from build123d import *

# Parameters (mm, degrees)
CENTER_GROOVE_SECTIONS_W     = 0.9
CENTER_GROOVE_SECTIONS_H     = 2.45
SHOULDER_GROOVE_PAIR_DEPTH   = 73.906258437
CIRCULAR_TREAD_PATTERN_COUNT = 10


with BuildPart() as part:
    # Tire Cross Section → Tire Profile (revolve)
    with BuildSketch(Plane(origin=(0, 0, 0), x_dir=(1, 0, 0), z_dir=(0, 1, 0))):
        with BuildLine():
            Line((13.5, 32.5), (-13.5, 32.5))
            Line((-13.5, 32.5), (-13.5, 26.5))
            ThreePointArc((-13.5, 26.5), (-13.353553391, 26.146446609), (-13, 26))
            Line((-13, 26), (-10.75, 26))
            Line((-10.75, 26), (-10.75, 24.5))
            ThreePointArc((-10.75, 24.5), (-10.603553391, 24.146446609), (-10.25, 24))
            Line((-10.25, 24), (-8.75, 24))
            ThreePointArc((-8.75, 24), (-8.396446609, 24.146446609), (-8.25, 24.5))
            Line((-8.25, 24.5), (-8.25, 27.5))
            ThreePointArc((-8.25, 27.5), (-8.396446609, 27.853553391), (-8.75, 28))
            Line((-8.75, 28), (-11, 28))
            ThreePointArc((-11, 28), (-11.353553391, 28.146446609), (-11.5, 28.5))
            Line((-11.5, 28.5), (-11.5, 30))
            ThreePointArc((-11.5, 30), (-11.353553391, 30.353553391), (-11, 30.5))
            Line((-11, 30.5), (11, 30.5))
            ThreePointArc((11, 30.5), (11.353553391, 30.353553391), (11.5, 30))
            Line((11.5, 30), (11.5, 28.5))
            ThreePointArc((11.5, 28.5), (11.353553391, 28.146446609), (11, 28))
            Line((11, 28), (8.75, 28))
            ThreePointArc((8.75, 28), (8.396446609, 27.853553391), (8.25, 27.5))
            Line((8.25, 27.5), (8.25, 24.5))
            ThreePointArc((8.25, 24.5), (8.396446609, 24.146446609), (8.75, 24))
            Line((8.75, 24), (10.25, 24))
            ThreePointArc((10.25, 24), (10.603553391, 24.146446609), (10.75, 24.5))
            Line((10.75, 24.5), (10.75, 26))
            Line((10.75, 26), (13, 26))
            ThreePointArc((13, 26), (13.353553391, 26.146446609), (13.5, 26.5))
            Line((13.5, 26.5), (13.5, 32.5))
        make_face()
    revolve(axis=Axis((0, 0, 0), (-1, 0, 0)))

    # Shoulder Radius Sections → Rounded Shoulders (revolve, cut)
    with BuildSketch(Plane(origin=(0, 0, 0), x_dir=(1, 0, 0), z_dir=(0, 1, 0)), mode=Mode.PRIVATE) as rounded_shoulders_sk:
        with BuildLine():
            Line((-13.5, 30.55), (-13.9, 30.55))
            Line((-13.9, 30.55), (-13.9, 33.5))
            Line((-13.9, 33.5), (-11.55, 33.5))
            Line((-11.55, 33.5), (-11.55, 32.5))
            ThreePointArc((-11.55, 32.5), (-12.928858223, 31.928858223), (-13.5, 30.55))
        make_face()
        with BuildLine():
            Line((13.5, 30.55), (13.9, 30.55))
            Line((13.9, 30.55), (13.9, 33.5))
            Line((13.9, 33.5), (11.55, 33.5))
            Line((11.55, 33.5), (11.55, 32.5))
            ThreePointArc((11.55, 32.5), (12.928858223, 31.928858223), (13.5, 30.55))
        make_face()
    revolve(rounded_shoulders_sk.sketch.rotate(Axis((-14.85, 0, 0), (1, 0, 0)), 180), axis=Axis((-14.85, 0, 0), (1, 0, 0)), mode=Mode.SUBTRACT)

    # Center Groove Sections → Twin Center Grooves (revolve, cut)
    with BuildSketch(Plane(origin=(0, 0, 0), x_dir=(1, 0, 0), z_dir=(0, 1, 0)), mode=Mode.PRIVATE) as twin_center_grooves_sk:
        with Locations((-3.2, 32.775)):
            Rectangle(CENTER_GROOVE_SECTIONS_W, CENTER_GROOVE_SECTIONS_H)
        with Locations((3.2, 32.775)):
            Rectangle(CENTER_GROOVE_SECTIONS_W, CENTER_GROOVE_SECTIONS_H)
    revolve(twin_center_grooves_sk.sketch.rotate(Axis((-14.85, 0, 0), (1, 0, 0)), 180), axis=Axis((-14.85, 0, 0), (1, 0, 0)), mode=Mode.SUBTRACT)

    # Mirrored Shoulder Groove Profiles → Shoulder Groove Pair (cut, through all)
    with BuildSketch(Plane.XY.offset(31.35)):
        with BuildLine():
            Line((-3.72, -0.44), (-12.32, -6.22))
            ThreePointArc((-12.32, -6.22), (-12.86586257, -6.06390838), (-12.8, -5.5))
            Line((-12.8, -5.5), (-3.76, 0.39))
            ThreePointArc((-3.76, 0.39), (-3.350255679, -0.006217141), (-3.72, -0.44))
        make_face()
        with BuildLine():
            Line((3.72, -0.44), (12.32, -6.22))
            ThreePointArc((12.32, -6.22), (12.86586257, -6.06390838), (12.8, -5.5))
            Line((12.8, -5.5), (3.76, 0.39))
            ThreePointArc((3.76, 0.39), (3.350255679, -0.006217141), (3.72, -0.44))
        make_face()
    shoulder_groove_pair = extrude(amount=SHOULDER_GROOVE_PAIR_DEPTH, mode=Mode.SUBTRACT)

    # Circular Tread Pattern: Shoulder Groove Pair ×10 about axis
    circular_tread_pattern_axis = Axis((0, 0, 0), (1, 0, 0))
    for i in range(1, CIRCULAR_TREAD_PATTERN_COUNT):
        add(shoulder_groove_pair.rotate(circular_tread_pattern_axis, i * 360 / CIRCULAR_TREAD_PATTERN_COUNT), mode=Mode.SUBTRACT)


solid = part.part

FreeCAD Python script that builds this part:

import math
import FreeCAD as App
import Part
import Sketcher
Q = App.Units.Quantity


def add_polygon(sketch, points):
    """Adds a closed chain of lines whose ends are joined by coincident constraints."""
    first, n = sketch.GeometryCount, len(points)
    for a, b in zip(points, points[1:] + points[:1]):
        sketch.addGeometry(Part.LineSegment(App.Vector(*a, 0), App.Vector(*b, 0)), False)
    for i in range(n):
        sketch.addConstraint(Sketcher.Constraint("Coincident", first + i, 2, first + (i + 1) % n, 1))

doc = App.newDocument("Part")
body = doc.addObject("PartDesign::Body", "Body")

# Sketch on XZ plane
sketch1 = doc.addObject("Sketcher::SketchObject", "Sketch")
body.addObject(sketch1)
sketch1.AttachmentSupport = (doc.XZ_Plane, [""])
sketch1.MapMode = "FlatFace"
sketch1.addGeometry([
    Part.LineSegment(App.Vector(13.5, -32.5, 0), App.Vector(-13.5, -32.5, 0)),  # 0
    Part.LineSegment(App.Vector(-13.5, -32.5, 0), App.Vector(-13.5, -26.5, 0)),  # 1
    Part.ArcOfCircle(Part.Circle(App.Vector(-13, -26.5, 0), App.Vector(0, 0, 1), 0.5), math.radians(90), math.radians(180)),  # 2
    Part.LineSegment(App.Vector(-13, -26, 0), App.Vector(-10.75, -26, 0)),  # 3
    Part.LineSegment(App.Vector(-10.75, -26, 0), App.Vector(-10.75, -24.5, 0)),  # 4
    Part.ArcOfCircle(Part.Circle(App.Vector(-10.25, -24.5, 0), App.Vector(0, 0, 1), 0.5), math.radians(90), math.radians(180)),  # 5
    Part.LineSegment(App.Vector(-10.25, -24, 0), App.Vector(-8.75, -24, 0)),  # 6
    Part.ArcOfCircle(Part.Circle(App.Vector(-8.75, -24.5, 0), App.Vector(0, 0, 1), 0.5), math.radians(0), math.radians(90)),  # 7
    Part.LineSegment(App.Vector(-8.25, -24.5, 0), App.Vector(-8.25, -27.5, 0)),  # 8
    Part.ArcOfCircle(Part.Circle(App.Vector(-8.75, -27.5, 0), App.Vector(0, 0, 1), 0.5), math.radians(-90), math.radians(0)),  # 9
    Part.LineSegment(App.Vector(-8.75, -28, 0), App.Vector(-11, -28, 0)),  # 10
    Part.ArcOfCircle(Part.Circle(App.Vector(-11, -28.5, 0), App.Vector(0, 0, 1), 0.5), math.radians(90), math.radians(180)),  # 11
    Part.LineSegment(App.Vector(-11.5, -28.5, 0), App.Vector(-11.5, -30, 0)),  # 12
    Part.ArcOfCircle(Part.Circle(App.Vector(-11, -30, 0), App.Vector(0, 0, 1), 0.5), math.radians(180), math.radians(270)),  # 13
    Part.LineSegment(App.Vector(-11, -30.5, 0), App.Vector(11, -30.5, 0)),  # 14
    Part.ArcOfCircle(Part.Circle(App.Vector(11, -30, 0), App.Vector(0, 0, 1), 0.5), math.radians(-90), math.radians(0)),  # 15
    Part.LineSegment(App.Vector(11.5, -30, 0), App.Vector(11.5, -28.5, 0)),  # 16
    Part.ArcOfCircle(Part.Circle(App.Vector(11, -28.5, 0), App.Vector(0, 0, 1), 0.5), math.radians(0), math.radians(90)),  # 17
    Part.LineSegment(App.Vector(11, -28, 0), App.Vector(8.75, -28, 0)),  # 18
    Part.ArcOfCircle(Part.Circle(App.Vector(8.75, -27.5, 0), App.Vector(0, 0, 1), 0.5), math.radians(180), math.radians(270)),  # 19
    Part.LineSegment(App.Vector(8.25, -27.5, 0), App.Vector(8.25, -24.5, 0)),  # 20
    Part.ArcOfCircle(Part.Circle(App.Vector(8.75, -24.5, 0), App.Vector(0, 0, 1), 0.5), math.radians(90), math.radians(180)),  # 21
    Part.LineSegment(App.Vector(8.75, -24, 0), App.Vector(10.25, -24, 0)),  # 22
    Part.ArcOfCircle(Part.Circle(App.Vector(10.25, -24.5, 0), App.Vector(0, 0, 1), 0.5), math.radians(0), math.radians(90)),  # 23
    Part.LineSegment(App.Vector(10.75, -24.5, 0), App.Vector(10.75, -26, 0)),  # 24
    Part.LineSegment(App.Vector(10.75, -26, 0), App.Vector(13, -26, 0)),  # 25
    Part.ArcOfCircle(Part.Circle(App.Vector(13, -26.5, 0), App.Vector(0, 0, 1), 0.5), math.radians(0), math.radians(90)),  # 26
    Part.LineSegment(App.Vector(13.5, -26.5, 0), App.Vector(13.5, -32.5, 0)),  # 27
], False)
sketch1.addConstraint([
    Sketcher.Constraint("Coincident", 0, 2, 1, 1),
    Sketcher.Constraint("Tangent", 1, 2, 2, 2),
    Sketcher.Constraint("Tangent", 2, 1, 3, 1),
    Sketcher.Constraint("Coincident", 3, 2, 4, 1),
    Sketcher.Constraint("Tangent", 4, 2, 5, 2),
    Sketcher.Constraint("Tangent", 5, 1, 6, 1),
    Sketcher.Constraint("Tangent", 6, 2, 7, 2),
    Sketcher.Constraint("Tangent", 7, 1, 8, 1),
    Sketcher.Constraint("Tangent", 8, 2, 9, 2),
    Sketcher.Constraint("Tangent", 9, 1, 10, 1),
    Sketcher.Constraint("Tangent", 10, 2, 11, 1),
    Sketcher.Constraint("Tangent", 11, 2, 12, 1),
    Sketcher.Constraint("Tangent", 12, 2, 13, 1),
    Sketcher.Constraint("Tangent", 13, 2, 14, 1),
    Sketcher.Constraint("Tangent", 14, 2, 15, 1),
    Sketcher.Constraint("Tangent", 15, 2, 16, 1),
    Sketcher.Constraint("Tangent", 16, 2, 17, 1),
    Sketcher.Constraint("Tangent", 17, 2, 18, 1),
    Sketcher.Constraint("Tangent", 18, 2, 19, 2),
    Sketcher.Constraint("Tangent", 19, 1, 20, 1),
    Sketcher.Constraint("Tangent", 20, 2, 21, 2),
    Sketcher.Constraint("Tangent", 21, 1, 22, 1),
    Sketcher.Constraint("Tangent", 22, 2, 23, 2),
    Sketcher.Constraint("Tangent", 23, 1, 24, 1),
    Sketcher.Constraint("Coincident", 24, 2, 25, 1),
    Sketcher.Constraint("Tangent", 25, 2, 26, 2),
    Sketcher.Constraint("Tangent", 26, 1, 27, 1),
    Sketcher.Constraint("Coincident", 27, 2, 0, 1),
    Sketcher.Constraint("Horizontal", 0),
    Sketcher.Constraint("Vertical", 1),
    Sketcher.Constraint("Horizontal", 3),
    Sketcher.Constraint("Vertical", 4),
    Sketcher.Constraint("Horizontal", 6),
    Sketcher.Constraint("Vertical", 8),
    Sketcher.Constraint("Horizontal", 10),
    Sketcher.Constraint("Vertical", 12),
    Sketcher.Constraint("Horizontal", 14),
    Sketcher.Constraint("Vertical", 16),
    Sketcher.Constraint("Horizontal", 18),
    Sketcher.Constraint("Vertical", 20),
    Sketcher.Constraint("Horizontal", 22),
    Sketcher.Constraint("Vertical", 24),
    Sketcher.Constraint("Horizontal", 25),
    Sketcher.Constraint("Vertical", 27),
    Sketcher.Constraint("Equal", 2, 5),
    Sketcher.Constraint("Equal", 5, 7),
    Sketcher.Constraint("Equal", 7, 9),
    Sketcher.Constraint("Equal", 9, 11),
    Sketcher.Constraint("Equal", 11, 13),
    Sketcher.Constraint("Equal", 13, 15),
    Sketcher.Constraint("Equal", 15, 17),
    Sketcher.Constraint("Equal", 17, 19),
    Sketcher.Constraint("Equal", 19, 21),
    Sketcher.Constraint("Equal", 21, 23),
    Sketcher.Constraint("Equal", 23, 26),
    Sketcher.Constraint("Symmetric", 11, 3, 17, 3, -2),
    Sketcher.Constraint("Symmetric", 7, 3, 21, 3, -2),
    Sketcher.Constraint("Symmetric", 2, 3, 26, 3, -2),
    Sketcher.Constraint("Equal", 3, 10),
    Sketcher.Constraint("Equal", 6, 22),
    Sketcher.Constraint("Equal", 22, 4),
    Sketcher.Constraint("Equal", 4, 12),
    Sketcher.Constraint("Radius", 2, Q("0.5 mm")),
    Sketcher.Constraint("DistanceX", 0, 2, 0, 1, Q("27 mm")),
    Sketcher.Constraint("DistanceX", 14, 1, 14, 2, Q("22 mm")),
    Sketcher.Constraint("DistanceY", 1, 1, 1, 2, Q("6 mm")),
    Sketcher.Constraint("DistanceY", 8, 2, 8, 1, Q("3 mm")),
    Sketcher.Constraint("DistanceY", 13, 3, -1, 1, Q("30 mm")),
    Sketcher.Constraint("DistanceX", 5, 3, 19, 3, Q("19 mm")),
])
revolution = doc.addObject("PartDesign::Revolution", "Revolution")
body.addObject(revolution)
revolution.Profile = sketch1
revolution.ReferenceAxis = (sketch1, ["H_Axis"])
revolution.Angle = 360

# Sketch on XZ plane
sketch2 = doc.addObject("Sketcher::SketchObject", "Sketch001")
body.addObject(sketch2)
sketch2.AttachmentSupport = (doc.XZ_Plane, [""])
sketch2.MapMode = "FlatFace"
sketch2.addGeometry([
    Part.LineSegment(App.Vector(-13.9, -30.55, 0), App.Vector(-13.5, -30.55, 0)),  # 0
    Part.ArcOfCircle(Part.Circle(App.Vector(-11.55, -30.55, 0), App.Vector(0, 0, 1), 1.95), math.radians(-180), math.radians(-90)),  # 1
    Part.LineSegment(App.Vector(-11.55, -32.5, 0), App.Vector(-11.55, -33.5, 0)),  # 2
    Part.LineSegment(App.Vector(-11.55, -33.5, 0), App.Vector(-13.9, -33.5, 0)),  # 3
    Part.LineSegment(App.Vector(-13.9, -33.5, 0), App.Vector(-13.9, -30.55, 0)),  # 4
    Part.LineSegment(App.Vector(13.5, -30.55, 0), App.Vector(13.9, -30.55, 0)),  # 5
    Part.LineSegment(App.Vector(13.9, -30.55, 0), App.Vector(13.9, -33.5, 0)),  # 6
    Part.LineSegment(App.Vector(13.9, -33.5, 0), App.Vector(11.55, -33.5, 0)),  # 7
    Part.LineSegment(App.Vector(11.55, -33.5, 0), App.Vector(11.55, -32.5, 0)),  # 8
    Part.ArcOfCircle(Part.Circle(App.Vector(11.55, -30.55, 0), App.Vector(0, 0, 1), 1.95), math.radians(-90), math.radians(0)),  # 9
], False)
sketch2.addConstraint([
    Sketcher.Constraint("Coincident", 0, 2, 1, 1),
    Sketcher.Constraint("Coincident", 1, 2, 2, 1),
    Sketcher.Constraint("Coincident", 2, 2, 3, 1),
    Sketcher.Constraint("Coincident", 3, 2, 4, 1),
    Sketcher.Constraint("Coincident", 4, 2, 0, 1),
    Sketcher.Constraint("Coincident", 5, 2, 6, 1),
    Sketcher.Constraint("Coincident", 6, 2, 7, 1),
    Sketcher.Constraint("Coincident", 7, 2, 8, 1),
    Sketcher.Constraint("Coincident", 8, 2, 9, 1),
    Sketcher.Constraint("Coincident", 9, 2, 5, 1),
    Sketcher.Constraint("Horizontal", 0),
    Sketcher.Constraint("Vertical", 2),
    Sketcher.Constraint("Horizontal", 3),
    Sketcher.Constraint("Vertical", 4),
    Sketcher.Constraint("Horizontal", 5),
    Sketcher.Constraint("Vertical", 6),
    Sketcher.Constraint("Horizontal", 7),
    Sketcher.Constraint("Vertical", 8),
    Sketcher.Constraint("Equal", 1, 9),
    Sketcher.Constraint("Symmetric", 1, 3, 9, 3, -2),
    Sketcher.Constraint("Symmetric", 4, 2, 5, 2, -2),
    Sketcher.Constraint("Symmetric", 2, 2, 7, 2, -2),
    Sketcher.Constraint("Horizontal", 9, 3, 0, 2),
    Sketcher.Constraint("Vertical", 9, 3, 7, 2),
    Sketcher.Constraint("DistanceY", 2, 2, 2, 1, Q("1 mm")),
    Sketcher.Constraint("Radius", 1, Q("1.95 mm")),
    Sketcher.Constraint("DistanceX", 0, 1, 0, 2, Q("0.4 mm")),
    Sketcher.Constraint("DistanceX", 0, 2, -1, 1, Q("13.5 mm")),
    Sketcher.Constraint("DistanceY", 1, 2, -1, 1, Q("32.5 mm")),
])
groove = doc.addObject("PartDesign::Groove", "Groove")
body.addObject(groove)
groove.Profile = sketch2
groove.ReferenceAxis = (sketch2, ["H_Axis"])
groove.Angle = 360

# Sketch on XZ plane
sketch3 = doc.addObject("Sketcher::SketchObject", "Sketch002")
body.addObject(sketch3)
sketch3.AttachmentSupport = (doc.XZ_Plane, [""])
sketch3.MapMode = "FlatFace"
add_polygon(sketch3, [(-3.6, -34), (-3.6, -31.6), (-2.8, -31.6), (-2.8, -34)])  # lines 0-3
add_polygon(sketch3, [(2.8, -34), (2.8, -31.6), (3.6, -31.6), (3.6, -34)])  # lines 4-7
sketch3.addConstraint([
    Sketcher.Constraint("Vertical", 0),
    Sketcher.Constraint("Horizontal", 1),
    Sketcher.Constraint("Vertical", 2),
    Sketcher.Constraint("Horizontal", 3),
    Sketcher.Constraint("Vertical", 4),
    Sketcher.Constraint("Horizontal", 5),
    Sketcher.Constraint("Vertical", 6),
    Sketcher.Constraint("Horizontal", 7),
    Sketcher.Constraint("Symmetric", 1, 2, 4, 2, -2),
    Sketcher.Constraint("Symmetric", 3, 2, 6, 2, -2),
    Sketcher.Constraint("DistanceX", 1, 1, 1, 2, Q("0.9 mm")),
    Sketcher.Constraint("DistanceY", 2, 2, -1, 1, Q("34 mm")),
    Sketcher.Constraint("DistanceY", 0, 1, 0, 2, Q("2.45 mm")),
    Sketcher.Constraint("DistanceX", 1, 2, 4, 2, Q("5.5 mm")),
])
groove2 = doc.addObject("PartDesign::Groove", "Groove001")
body.addObject(groove2)
groove2.Profile = sketch3
groove2.ReferenceAxis = (sketch3, ["H_Axis"])
groove2.Angle = 360

# Sketch on XY plane
sketch4 = doc.addObject("Sketcher::SketchObject", "Sketch003")
body.addObject(sketch4)
sketch4.AttachmentSupport = (doc.XY_Plane, [""])
sketch4.MapMode = "FlatFace"
sketch4.AttachmentOffset = App.Placement(App.Vector(0, 0, 31.35), App.Rotation())
sketch4.addGeometry([
    Part.LineSegment(App.Vector(-12.32, -6.22, 0), App.Vector(-3.72, -0.44, 0)),  # 0
    Part.ArcOfCircle(Part.Circle(App.Vector(-3.77, -0.03, 0), App.Vector(0, 0, 1), 0.42), math.radians(-84), math.radians(89)),  # 1
    Part.LineSegment(App.Vector(-3.76, 0.39, 0), App.Vector(-12.8, -5.5, 0)),  # 2
    Part.ArcOfCircle(Part.Circle(App.Vector(-12.5, -5.82, 0), App.Vector(0, 0, 1), 0.44), math.radians(133), math.radians(294)),  # 3
    Part.LineSegment(App.Vector(3.72, -0.44, 0), App.Vector(12.32, -6.22, 0)),  # 4
    Part.ArcOfCircle(Part.Circle(App.Vector(12.5, -5.82, 0), App.Vector(0, 0, 1), 0.44), math.radians(-114), math.radians(47)),  # 5
    Part.LineSegment(App.Vector(12.8, -5.5, 0), App.Vector(3.76, 0.39, 0)),  # 6
    Part.ArcOfCircle(Part.Circle(App.Vector(3.77, -0.03, 0), App.Vector(0, 0, 1), 0.42), math.radians(91), math.radians(264)),  # 7
], False)
sketch4.addConstraint([
    Sketcher.Constraint("Coincident", 0, 2, 1, 1),
    Sketcher.Constraint("Coincident", 1, 2, 2, 1),
    Sketcher.Constraint("Coincident", 2, 2, 3, 1),
    Sketcher.Constraint("Coincident", 3, 2, 0, 1),
    Sketcher.Constraint("Coincident", 4, 2, 5, 1),
    Sketcher.Constraint("Coincident", 5, 2, 6, 1),
    Sketcher.Constraint("Coincident", 6, 2, 7, 1),
    Sketcher.Constraint("Coincident", 7, 2, 4, 1),
    Sketcher.Constraint("Equal", 3, 5),
    Sketcher.Constraint("Equal", 1, 7),
    Sketcher.Constraint("Symmetric", 3, 3, 5, 3, -2),
    Sketcher.Constraint("Symmetric", 1, 3, 7, 3, -2),
    Sketcher.Constraint("Horizontal", 3, 2, 4, 2),
    Sketcher.Constraint("Horizontal", 2, 2, 5, 2),
    Sketcher.Constraint("Horizontal", 1, 2, 6, 2),
    Sketcher.Constraint("Horizontal", 0, 2, 7, 2),
    Sketcher.Constraint("DistanceX", 2, 2, -1, 1, Q("12.8 mm")),
    Sketcher.Constraint("DistanceY", 2, 2, -1, 1, Q("5.5 mm")),
    Sketcher.Constraint("Radius", 1, Q("0.416301 mm")),
    Sketcher.Constraint("DistanceX", 3, 2, 0, 2, Q("8.6 mm")),
    Sketcher.Constraint("DistanceX", 0, 2, -1, 1, Q("3.72 mm")),
    Sketcher.Constraint("DistanceY", 0, 2, -1, 1, Q("0.44 mm")),
    Sketcher.Constraint("DistanceX", 1, 2, -1, 1, Q("3.76 mm")),
    Sketcher.Constraint("DistanceY", -1, 1, 1, 2, Q("0.39 mm")),
    Sketcher.Constraint("DistanceY", 3, 2, -1, 1, Q("6.22 mm")),
    Sketcher.Constraint("Radius", 3, Q("0.438424 mm")),
])
pocket1 = doc.addObject("PartDesign::Pocket", "Pocket")
body.addObject(pocket1)
pocket1.Profile = sketch4
pocket1.Type = "ThroughAll"
pocket1.Reversed = True
doc.recompute()

polarpattern = doc.addObject("PartDesign::PolarPattern", "PolarPattern")
body.addObject(polarpattern)
polarpattern.Originals = [pocket1]
polarpattern.Axis = (doc.X_Axis, [""])
polarpattern.Angle = 360
polarpattern.Occurrences = 10
body.Tip = polarpattern

doc.recompute()
